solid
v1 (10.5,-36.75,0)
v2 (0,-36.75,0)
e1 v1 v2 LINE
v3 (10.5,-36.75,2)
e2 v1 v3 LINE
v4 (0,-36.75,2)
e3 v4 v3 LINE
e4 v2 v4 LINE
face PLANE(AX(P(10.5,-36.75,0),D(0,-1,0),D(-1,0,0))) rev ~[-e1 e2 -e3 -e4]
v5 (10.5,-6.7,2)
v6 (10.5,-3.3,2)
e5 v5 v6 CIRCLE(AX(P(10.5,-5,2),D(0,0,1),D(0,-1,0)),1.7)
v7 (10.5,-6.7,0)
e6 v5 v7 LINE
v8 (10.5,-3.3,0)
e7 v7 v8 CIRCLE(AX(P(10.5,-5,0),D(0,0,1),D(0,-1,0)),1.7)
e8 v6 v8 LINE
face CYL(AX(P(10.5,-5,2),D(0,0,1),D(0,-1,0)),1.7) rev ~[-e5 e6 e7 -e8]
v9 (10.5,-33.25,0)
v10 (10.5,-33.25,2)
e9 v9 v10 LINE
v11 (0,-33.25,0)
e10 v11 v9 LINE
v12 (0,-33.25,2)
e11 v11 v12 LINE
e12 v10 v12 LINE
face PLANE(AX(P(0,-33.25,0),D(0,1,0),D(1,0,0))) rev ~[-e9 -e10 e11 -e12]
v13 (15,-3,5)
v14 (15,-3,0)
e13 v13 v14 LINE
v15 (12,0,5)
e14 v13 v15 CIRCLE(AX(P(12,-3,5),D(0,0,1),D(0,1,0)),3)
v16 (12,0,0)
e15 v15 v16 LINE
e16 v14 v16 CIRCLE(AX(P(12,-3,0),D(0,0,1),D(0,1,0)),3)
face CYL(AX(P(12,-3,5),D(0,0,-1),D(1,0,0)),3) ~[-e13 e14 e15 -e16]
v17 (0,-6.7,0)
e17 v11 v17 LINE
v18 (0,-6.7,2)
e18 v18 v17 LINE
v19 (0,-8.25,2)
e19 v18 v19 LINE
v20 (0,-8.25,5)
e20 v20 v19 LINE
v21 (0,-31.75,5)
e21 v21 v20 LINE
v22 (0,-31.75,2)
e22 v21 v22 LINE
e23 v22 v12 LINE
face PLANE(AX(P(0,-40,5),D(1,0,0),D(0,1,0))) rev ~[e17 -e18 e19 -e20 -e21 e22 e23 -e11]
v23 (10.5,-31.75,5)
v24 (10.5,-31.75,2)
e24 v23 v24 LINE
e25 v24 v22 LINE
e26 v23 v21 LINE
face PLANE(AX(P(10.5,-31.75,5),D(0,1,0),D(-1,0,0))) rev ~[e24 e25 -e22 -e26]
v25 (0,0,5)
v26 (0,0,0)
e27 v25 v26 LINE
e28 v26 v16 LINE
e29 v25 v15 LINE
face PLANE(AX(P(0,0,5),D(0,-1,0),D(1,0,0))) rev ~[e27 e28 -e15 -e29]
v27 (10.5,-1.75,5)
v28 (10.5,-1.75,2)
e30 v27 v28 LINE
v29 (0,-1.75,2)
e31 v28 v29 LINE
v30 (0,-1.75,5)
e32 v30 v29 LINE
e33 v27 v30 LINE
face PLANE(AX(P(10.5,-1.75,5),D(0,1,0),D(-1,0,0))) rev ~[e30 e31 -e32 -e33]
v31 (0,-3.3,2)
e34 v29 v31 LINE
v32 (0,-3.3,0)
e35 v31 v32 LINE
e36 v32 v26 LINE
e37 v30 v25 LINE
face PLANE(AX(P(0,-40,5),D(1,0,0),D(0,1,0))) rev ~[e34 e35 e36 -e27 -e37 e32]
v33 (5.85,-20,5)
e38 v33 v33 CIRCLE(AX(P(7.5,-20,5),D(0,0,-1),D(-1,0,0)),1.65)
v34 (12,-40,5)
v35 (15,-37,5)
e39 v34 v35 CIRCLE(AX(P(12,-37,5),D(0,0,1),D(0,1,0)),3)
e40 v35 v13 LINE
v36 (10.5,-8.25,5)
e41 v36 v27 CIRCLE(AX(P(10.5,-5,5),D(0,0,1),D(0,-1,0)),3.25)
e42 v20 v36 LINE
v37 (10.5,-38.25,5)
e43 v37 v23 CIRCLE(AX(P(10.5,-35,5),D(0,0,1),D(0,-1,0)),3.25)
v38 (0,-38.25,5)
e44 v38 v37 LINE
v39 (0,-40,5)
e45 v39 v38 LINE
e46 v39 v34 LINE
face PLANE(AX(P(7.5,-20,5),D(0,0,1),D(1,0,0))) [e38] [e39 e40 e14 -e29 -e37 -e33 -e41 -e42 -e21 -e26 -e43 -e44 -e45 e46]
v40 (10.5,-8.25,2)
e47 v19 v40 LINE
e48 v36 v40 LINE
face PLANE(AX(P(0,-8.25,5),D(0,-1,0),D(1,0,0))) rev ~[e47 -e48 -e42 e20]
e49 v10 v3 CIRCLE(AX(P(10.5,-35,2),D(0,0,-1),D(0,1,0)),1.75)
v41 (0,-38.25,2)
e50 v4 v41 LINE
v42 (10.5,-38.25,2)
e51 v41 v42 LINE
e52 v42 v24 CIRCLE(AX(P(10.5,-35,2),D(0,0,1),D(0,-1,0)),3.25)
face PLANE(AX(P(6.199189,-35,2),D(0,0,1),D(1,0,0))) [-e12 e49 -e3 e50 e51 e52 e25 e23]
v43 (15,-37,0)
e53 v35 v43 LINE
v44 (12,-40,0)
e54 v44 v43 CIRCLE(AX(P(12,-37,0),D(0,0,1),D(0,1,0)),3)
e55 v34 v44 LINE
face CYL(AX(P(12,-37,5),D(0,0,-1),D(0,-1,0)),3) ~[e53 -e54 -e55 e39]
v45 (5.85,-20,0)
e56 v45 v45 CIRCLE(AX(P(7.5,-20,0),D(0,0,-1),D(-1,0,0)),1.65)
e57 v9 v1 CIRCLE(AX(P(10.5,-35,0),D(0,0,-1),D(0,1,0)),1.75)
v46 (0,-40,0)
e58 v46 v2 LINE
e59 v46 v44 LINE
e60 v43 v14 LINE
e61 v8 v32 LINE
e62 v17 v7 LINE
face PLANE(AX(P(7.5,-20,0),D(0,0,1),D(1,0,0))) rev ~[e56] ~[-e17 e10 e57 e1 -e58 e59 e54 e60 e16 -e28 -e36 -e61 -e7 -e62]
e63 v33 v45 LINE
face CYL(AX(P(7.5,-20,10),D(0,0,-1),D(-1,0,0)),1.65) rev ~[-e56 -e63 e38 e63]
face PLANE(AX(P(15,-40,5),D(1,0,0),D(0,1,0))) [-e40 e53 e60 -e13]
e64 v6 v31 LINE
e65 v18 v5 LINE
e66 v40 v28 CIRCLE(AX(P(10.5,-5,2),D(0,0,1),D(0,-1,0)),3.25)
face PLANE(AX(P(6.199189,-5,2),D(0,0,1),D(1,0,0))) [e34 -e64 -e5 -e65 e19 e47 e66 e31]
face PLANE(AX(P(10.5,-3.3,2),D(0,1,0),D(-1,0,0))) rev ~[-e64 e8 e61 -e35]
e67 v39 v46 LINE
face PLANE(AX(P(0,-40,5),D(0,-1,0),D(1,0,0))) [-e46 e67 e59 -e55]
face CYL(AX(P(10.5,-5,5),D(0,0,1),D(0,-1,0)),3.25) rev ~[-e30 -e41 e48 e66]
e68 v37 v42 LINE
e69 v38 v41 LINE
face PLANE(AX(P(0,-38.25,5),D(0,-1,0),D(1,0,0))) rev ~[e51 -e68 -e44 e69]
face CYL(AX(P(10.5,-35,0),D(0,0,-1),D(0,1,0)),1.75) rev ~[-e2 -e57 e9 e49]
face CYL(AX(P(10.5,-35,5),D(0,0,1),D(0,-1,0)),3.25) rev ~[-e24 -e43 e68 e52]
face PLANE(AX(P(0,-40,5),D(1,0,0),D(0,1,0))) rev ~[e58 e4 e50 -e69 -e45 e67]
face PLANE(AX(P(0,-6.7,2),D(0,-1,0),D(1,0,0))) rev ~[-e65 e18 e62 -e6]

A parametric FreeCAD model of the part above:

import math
import FreeCAD as App
import Part
import Sketcher
from FreeCAD import Vector


def edges_at(feature, points):
    """Names of the edges that pass closest to the given points."""
    edges = feature.Shape.Edges
    near = lambda p: min(range(len(edges)), key=lambda i: edges[i].distToShape(Part.Vertex(*p))[0])
    return sorted({f"Edge{near(p) + 1}" for p in points})


def add_polygon(sketch, points):
    """Adds a closed chain of lines whose ends are joined by coincident constraints."""
    first, n = sketch.GeometryCount, len(points)
    for a, b in zip(points, points[1:] + points[:1]):
        sketch.addGeometry(Part.LineSegment(App.Vector(*a, 0), App.Vector(*b, 0)), False)
    for i in range(n):
        sketch.addConstraint(Sketcher.Constraint("Coincident", first + i, 2, first + (i + 1) % n, 1))

doc = App.newDocument("Part")
body = doc.addObject("PartDesign::Body", "Body")

# Sketch on XY plane
sketch1 = body.newObject("Sketcher::SketchObject", "Sketch")
sketch1.AttachmentSupport = (doc.getObject("XY_Plane"), [""])
sketch1.MapMode = "FlatFace"
sketch1.AttachmentOffset = App.Placement(Vector(0, 0, 5), App.Rotation())
add_polygon(sketch1, [(0, 0), (0, -40), (15, -40), (15, 0)])  # lines 0-3
sketch1.addConstraint(Sketcher.Constraint("Vertical", 0))
sketch1.addConstraint(Sketcher.Constraint("Horizontal", 1))
sketch1.addConstraint(Sketcher.Constraint("Vertical", 2))
sketch1.addConstraint(Sketcher.Constraint("Horizontal", 3))
sketch1.addConstraint(Sketcher.Constraint("Coincident", 3, 2, -1, 1))
sketch1.addConstraint(Sketcher.Constraint("DistanceX", 1, 1, 1, 2, 15.0))
sketch1.addConstraint(Sketcher.Constraint("DistanceY", 0, 2, 0, 1, 40.0))
pad1 = body.newObject("PartDesign::Pad", "Pad")
pad1.Profile = sketch1
pad1.Length = 5
pad1.Reversed = True

# Sketch on XY plane
sketch2 = body.newObject("Sketcher::SketchObject", "Sketch001")
sketch2.AttachmentSupport = (doc.getObject("XY_Plane"), [""])
sketch2.MapMode = "FlatFace"
sketch2.AttachmentOffset = App.Placement(Vector(0, 0, 5), App.Rotation())
sketch2.addGeometry(Part.LineSegment(Vector(0, -8.2, 0), Vector(10.5, -8.2, 0)), False)
sketch2.addGeometry(Part.ArcOfCircle(Part.Circle(Vector(10.5, -5, 0), Vector(0, 0, 1), 3.2), math.radians(-90), math.radians(90)), False)
sketch2.addGeometry(Part.LineSegment(Vector(10.5, -1.8, 0), Vector(0, -1.8, 0)), False)
sketch2.addGeometry(Part.LineSegment(Vector(0, -1.8, 0), Vector(0, -8.2, 0)), False)
sketch2.addConstraint(Sketcher.Constraint("Tangent", 0, 2, 1, 1))
sketch2.addConstraint(Sketcher.Constraint("Tangent", 1, 2, 2, 1))
sketch2.addConstraint(Sketcher.Constraint("Coincident", 2, 2, 3, 1))
sketch2.addConstraint(Sketcher.Constraint("Coincident", 3, 2, 0, 1))
sketch2.addConstraint(Sketcher.Constraint("Horizontal", 0))
sketch2.addConstraint(Sketcher.Constraint("Horizontal", 2))
sketch2.addConstraint(Sketcher.Constraint("Vertical", 3))
sketch2.addConstraint(Sketcher.Constraint("PointOnObject", 2, 2, -2))
sketch2.addConstraint(Sketcher.Constraint("Radius", 1, 3.25))
sketch2.addConstraint(Sketcher.Constraint("DistanceX", 0, 1, 0, 2, 10.5))
sketch2.addConstraint(Sketcher.Constraint("DistanceY", 1, 3, -1, 1, 5.0))
pocket1 = body.newObject("PartDesign::Pocket", "Pocket")
pocket1.Profile = sketch2
pocket1.Length = 3

# Sketch on XY plane
sketch3 = body.newObject("Sketcher::SketchObject", "Sketch002")
sketch3.AttachmentSupport = (doc.getObject("XY_Plane"), [""])
sketch3.MapMode = "FlatFace"
sketch3.AttachmentOffset = App.Placement(Vector(0, 0, 2), App.Rotation())
sketch3.addGeometry(Part.LineSegment(Vector(0, -3.3, 0), Vector(0, -6.7, 0)), False)
sketch3.addGeometry(Part.LineSegment(Vector(0, -6.7, 0), Vector(10.5, -6.7, 0)), False)
sketch3.addGeometry(Part.ArcOfCircle(Part.Circle(Vector(10.5, -5, 0), Vector(0, 0, 1), 1.7), math.radians(-90), math.radians(90)), False)
sketch3.addGeometry(Part.LineSegment(Vector(10.5, -3.3, 0), Vector(0, -3.3, 0)), False)
sketch3.addConstraint(Sketcher.Constraint("Coincident", 0, 2, 1, 1))
sketch3.addConstraint(Sketcher.Constraint("Tangent", 1, 2, 2, 1))
sketch3.addConstraint(Sketcher.Constraint("Tangent", 2, 2, 3, 1))
sketch3.addConstraint(Sketcher.Constraint("Coincident", 3, 2, 0, 1))
sketch3.addConstraint(Sketcher.Constraint("Vertical", 0))
sketch3.addConstraint(Sketcher.Constraint("Horizontal", 1))
sketch3.addConstraint(Sketcher.Constraint("Horizontal", 3))
sketch3.addConstraint(Sketcher.Constraint("PointOnObject", 0, 2, -2))
sketch3.addConstraint(Sketcher.Constraint("Radius", 2, 1.7))
sketch3.addConstraint(Sketcher.Constraint("DistanceX", 1, 1, 1, 2, 10.5))
sketch3.addConstraint(Sketcher.Constraint("DistanceY", 2, 3, -1, 1, 5.0))
pocket2 = body.newObject("PartDesign::Pocket", "Pocket001")
pocket2.Profile = sketch3
pocket2.Type = "ThroughAll"

# Sketch on XY plane
sketch4 = body.newObject("Sketcher::SketchObject", "Sketch003")
sketch4.AttachmentSupport = (doc.getObject("XY_Plane"), [""])
sketch4.MapMode = "FlatFace"
sketch4.AttachmentOffset = App.Placement(Vector(0, 0, 5), App.Rotation())
sketch4.addGeometry(Part.LineSegment(Vector(0, -38.2, 0), Vector(10.5, -38.2, 0)), False)
sketch4.addGeometry(Part.ArcOfCircle(Part.Circle(Vector(10.5, -35, 0), Vector(0, 0, 1), 3.2), math.radians(-90), math.radians(90)), False)
sketch4.addGeometry(Part.LineSegment(Vector(10.5, -31.8, 0), Vector(0, -31.8, 0)), False)
sketch4.addGeometry(Part.LineSegment(Vector(0, -31.8, 0), Vector(0, -38.2, 0)), False)
sketch4.addConstraint(Sketcher.Constraint("Tangent", 0, 2, 1, 1))
sketch4.addConstraint(Sketcher.Constraint("Tangent", 1, 2, 2, 1))
sketch4.addConstraint(Sketcher.Constraint("Coincident", 2, 2, 3, 1))
sketch4.addConstraint(Sketcher.Constraint("Coincident", 3, 2, 0, 1))
sketch4.addConstraint(Sketcher.Constraint("Horizontal", 0))
sketch4.addConstraint(Sketcher.Constraint("Horizontal", 2))
sketch4.addConstraint(Sketcher.Constraint("Vertical", 3))
sketch4.addConstraint(Sketcher.Constraint("PointOnObject", 2, 2, -2))
sketch4.addConstraint(Sketcher.Constraint("Radius", 1, 3.25))
sketch4.addConstraint(Sketcher.Constraint("DistanceX", 0, 1, 0, 2, 10.5))
sketch4.addConstraint(Sketcher.Constraint("DistanceY", 1, 3, -1, 1, 35.0))
pocket3 = body.newObject("PartDesign::Pocket", "Pocket002")
pocket3.Profile = sketch4
pocket3.Length = 3

# Sketch on XY plane
sketch5 = body.newObject("Sketcher::SketchObject", "Sketch004")
sketch5.AttachmentSupport = (doc.getObject("XY_Plane"), [""])
sketch5.MapMode = "FlatFace"
sketch5.addGeometry(Part.LineSegment(Vector(0, -36.8, 0), Vector(0, -33.2, 0)), False)
sketch5.addGeometry(Part.LineSegment(Vector(0, -33.2, 0), Vector(10.5, -33.2, 0)), False)
sketch5.addGeometry(Part.ArcOfCircle(Part.Circle(Vector(10.5, -35, 0), Vector(0, 0, 1), 1.8), math.radians(-90), math.radians(90)), False)
sketch5.addGeometry(Part.LineSegment(Vector(10.5, -36.8, 0), Vector(0, -36.8, 0)), False)
sketch5.addConstraint(Sketcher.Constraint("Coincident", 0, 2, 1, 1))
sketch5.addConstraint(Sketcher.Constraint("Tangent", 1, 2, 2, 2))
sketch5.addConstraint(Sketcher.Constraint("Tangent", 2, 1, 3, 1))
sketch5.addConstraint(Sketcher.Constraint("Coincident", 3, 2, 0, 1))
sketch5.addConstraint(Sketcher.Constraint("Vertical", 0))
sketch5.addConstraint(Sketcher.Constraint("Horizontal", 1))
sketch5.addConstraint(Sketcher.Constraint("Horizontal", 3))
sketch5.addConstraint(Sketcher.Constraint("PointOnObject", 0, 2, -2))
sketch5.addConstraint(Sketcher.Constraint("Radius", 2, 1.75))
sketch5.addConstraint(Sketcher.Constraint("DistanceX", 1, 1, 1, 2, 10.5))
sketch5.addConstraint(Sketcher.Constraint("DistanceY", 2, 3, -1, 1, 35.0))
pocket4 = body.newObject("PartDesign::Pocket", "Pocket003")
pocket4.Profile = sketch5
pocket4.Type = "ThroughAll"
pocket4.Reversed = True

# Sketch on XY plane
sketch6 = body.newObject("Sketcher::SketchObject", "Sketch005")
sketch6.AttachmentSupport = (doc.getObject("XY_Plane"), [""])
sketch6.MapMode = "FlatFace"
sketch6.AttachmentOffset = App.Placement(Vector(0, 0, 5), App.Rotation())
sketch6.addGeometry(Part.Circle(Vector(7.5, -20, 0), Vector(0, 0, 1), 1.6), False)
sketch6.addConstraint(Sketcher.Constraint("Diameter", 0, 3.3))
sketch6.addConstraint(Sketcher.Constraint("DistanceY", 0, 3, -1, 1, 20.0))
sketch6.addConstraint(Sketcher.Constraint("DistanceX", -1, 1, 0, 3, 7.5))
doc.recompute()
hole = body.newObject("PartDesign::Hole", "Hole")
hole.Profile = sketch6
hole.ThreadType = "None"
hole.Diameter = 3.3
hole.DepthType = "Dimension"
hole.Depth = 5
hole.DrillPoint = "Flat"
doc.recompute()

fillet = body.newObject("PartDesign::Fillet", "Fillet")
fillet.Base = (hole, edges_at(hole, [(15, -40, 2.5), (15, 0, 2.5)]))
fillet.Radius = 3

doc.recompute()
